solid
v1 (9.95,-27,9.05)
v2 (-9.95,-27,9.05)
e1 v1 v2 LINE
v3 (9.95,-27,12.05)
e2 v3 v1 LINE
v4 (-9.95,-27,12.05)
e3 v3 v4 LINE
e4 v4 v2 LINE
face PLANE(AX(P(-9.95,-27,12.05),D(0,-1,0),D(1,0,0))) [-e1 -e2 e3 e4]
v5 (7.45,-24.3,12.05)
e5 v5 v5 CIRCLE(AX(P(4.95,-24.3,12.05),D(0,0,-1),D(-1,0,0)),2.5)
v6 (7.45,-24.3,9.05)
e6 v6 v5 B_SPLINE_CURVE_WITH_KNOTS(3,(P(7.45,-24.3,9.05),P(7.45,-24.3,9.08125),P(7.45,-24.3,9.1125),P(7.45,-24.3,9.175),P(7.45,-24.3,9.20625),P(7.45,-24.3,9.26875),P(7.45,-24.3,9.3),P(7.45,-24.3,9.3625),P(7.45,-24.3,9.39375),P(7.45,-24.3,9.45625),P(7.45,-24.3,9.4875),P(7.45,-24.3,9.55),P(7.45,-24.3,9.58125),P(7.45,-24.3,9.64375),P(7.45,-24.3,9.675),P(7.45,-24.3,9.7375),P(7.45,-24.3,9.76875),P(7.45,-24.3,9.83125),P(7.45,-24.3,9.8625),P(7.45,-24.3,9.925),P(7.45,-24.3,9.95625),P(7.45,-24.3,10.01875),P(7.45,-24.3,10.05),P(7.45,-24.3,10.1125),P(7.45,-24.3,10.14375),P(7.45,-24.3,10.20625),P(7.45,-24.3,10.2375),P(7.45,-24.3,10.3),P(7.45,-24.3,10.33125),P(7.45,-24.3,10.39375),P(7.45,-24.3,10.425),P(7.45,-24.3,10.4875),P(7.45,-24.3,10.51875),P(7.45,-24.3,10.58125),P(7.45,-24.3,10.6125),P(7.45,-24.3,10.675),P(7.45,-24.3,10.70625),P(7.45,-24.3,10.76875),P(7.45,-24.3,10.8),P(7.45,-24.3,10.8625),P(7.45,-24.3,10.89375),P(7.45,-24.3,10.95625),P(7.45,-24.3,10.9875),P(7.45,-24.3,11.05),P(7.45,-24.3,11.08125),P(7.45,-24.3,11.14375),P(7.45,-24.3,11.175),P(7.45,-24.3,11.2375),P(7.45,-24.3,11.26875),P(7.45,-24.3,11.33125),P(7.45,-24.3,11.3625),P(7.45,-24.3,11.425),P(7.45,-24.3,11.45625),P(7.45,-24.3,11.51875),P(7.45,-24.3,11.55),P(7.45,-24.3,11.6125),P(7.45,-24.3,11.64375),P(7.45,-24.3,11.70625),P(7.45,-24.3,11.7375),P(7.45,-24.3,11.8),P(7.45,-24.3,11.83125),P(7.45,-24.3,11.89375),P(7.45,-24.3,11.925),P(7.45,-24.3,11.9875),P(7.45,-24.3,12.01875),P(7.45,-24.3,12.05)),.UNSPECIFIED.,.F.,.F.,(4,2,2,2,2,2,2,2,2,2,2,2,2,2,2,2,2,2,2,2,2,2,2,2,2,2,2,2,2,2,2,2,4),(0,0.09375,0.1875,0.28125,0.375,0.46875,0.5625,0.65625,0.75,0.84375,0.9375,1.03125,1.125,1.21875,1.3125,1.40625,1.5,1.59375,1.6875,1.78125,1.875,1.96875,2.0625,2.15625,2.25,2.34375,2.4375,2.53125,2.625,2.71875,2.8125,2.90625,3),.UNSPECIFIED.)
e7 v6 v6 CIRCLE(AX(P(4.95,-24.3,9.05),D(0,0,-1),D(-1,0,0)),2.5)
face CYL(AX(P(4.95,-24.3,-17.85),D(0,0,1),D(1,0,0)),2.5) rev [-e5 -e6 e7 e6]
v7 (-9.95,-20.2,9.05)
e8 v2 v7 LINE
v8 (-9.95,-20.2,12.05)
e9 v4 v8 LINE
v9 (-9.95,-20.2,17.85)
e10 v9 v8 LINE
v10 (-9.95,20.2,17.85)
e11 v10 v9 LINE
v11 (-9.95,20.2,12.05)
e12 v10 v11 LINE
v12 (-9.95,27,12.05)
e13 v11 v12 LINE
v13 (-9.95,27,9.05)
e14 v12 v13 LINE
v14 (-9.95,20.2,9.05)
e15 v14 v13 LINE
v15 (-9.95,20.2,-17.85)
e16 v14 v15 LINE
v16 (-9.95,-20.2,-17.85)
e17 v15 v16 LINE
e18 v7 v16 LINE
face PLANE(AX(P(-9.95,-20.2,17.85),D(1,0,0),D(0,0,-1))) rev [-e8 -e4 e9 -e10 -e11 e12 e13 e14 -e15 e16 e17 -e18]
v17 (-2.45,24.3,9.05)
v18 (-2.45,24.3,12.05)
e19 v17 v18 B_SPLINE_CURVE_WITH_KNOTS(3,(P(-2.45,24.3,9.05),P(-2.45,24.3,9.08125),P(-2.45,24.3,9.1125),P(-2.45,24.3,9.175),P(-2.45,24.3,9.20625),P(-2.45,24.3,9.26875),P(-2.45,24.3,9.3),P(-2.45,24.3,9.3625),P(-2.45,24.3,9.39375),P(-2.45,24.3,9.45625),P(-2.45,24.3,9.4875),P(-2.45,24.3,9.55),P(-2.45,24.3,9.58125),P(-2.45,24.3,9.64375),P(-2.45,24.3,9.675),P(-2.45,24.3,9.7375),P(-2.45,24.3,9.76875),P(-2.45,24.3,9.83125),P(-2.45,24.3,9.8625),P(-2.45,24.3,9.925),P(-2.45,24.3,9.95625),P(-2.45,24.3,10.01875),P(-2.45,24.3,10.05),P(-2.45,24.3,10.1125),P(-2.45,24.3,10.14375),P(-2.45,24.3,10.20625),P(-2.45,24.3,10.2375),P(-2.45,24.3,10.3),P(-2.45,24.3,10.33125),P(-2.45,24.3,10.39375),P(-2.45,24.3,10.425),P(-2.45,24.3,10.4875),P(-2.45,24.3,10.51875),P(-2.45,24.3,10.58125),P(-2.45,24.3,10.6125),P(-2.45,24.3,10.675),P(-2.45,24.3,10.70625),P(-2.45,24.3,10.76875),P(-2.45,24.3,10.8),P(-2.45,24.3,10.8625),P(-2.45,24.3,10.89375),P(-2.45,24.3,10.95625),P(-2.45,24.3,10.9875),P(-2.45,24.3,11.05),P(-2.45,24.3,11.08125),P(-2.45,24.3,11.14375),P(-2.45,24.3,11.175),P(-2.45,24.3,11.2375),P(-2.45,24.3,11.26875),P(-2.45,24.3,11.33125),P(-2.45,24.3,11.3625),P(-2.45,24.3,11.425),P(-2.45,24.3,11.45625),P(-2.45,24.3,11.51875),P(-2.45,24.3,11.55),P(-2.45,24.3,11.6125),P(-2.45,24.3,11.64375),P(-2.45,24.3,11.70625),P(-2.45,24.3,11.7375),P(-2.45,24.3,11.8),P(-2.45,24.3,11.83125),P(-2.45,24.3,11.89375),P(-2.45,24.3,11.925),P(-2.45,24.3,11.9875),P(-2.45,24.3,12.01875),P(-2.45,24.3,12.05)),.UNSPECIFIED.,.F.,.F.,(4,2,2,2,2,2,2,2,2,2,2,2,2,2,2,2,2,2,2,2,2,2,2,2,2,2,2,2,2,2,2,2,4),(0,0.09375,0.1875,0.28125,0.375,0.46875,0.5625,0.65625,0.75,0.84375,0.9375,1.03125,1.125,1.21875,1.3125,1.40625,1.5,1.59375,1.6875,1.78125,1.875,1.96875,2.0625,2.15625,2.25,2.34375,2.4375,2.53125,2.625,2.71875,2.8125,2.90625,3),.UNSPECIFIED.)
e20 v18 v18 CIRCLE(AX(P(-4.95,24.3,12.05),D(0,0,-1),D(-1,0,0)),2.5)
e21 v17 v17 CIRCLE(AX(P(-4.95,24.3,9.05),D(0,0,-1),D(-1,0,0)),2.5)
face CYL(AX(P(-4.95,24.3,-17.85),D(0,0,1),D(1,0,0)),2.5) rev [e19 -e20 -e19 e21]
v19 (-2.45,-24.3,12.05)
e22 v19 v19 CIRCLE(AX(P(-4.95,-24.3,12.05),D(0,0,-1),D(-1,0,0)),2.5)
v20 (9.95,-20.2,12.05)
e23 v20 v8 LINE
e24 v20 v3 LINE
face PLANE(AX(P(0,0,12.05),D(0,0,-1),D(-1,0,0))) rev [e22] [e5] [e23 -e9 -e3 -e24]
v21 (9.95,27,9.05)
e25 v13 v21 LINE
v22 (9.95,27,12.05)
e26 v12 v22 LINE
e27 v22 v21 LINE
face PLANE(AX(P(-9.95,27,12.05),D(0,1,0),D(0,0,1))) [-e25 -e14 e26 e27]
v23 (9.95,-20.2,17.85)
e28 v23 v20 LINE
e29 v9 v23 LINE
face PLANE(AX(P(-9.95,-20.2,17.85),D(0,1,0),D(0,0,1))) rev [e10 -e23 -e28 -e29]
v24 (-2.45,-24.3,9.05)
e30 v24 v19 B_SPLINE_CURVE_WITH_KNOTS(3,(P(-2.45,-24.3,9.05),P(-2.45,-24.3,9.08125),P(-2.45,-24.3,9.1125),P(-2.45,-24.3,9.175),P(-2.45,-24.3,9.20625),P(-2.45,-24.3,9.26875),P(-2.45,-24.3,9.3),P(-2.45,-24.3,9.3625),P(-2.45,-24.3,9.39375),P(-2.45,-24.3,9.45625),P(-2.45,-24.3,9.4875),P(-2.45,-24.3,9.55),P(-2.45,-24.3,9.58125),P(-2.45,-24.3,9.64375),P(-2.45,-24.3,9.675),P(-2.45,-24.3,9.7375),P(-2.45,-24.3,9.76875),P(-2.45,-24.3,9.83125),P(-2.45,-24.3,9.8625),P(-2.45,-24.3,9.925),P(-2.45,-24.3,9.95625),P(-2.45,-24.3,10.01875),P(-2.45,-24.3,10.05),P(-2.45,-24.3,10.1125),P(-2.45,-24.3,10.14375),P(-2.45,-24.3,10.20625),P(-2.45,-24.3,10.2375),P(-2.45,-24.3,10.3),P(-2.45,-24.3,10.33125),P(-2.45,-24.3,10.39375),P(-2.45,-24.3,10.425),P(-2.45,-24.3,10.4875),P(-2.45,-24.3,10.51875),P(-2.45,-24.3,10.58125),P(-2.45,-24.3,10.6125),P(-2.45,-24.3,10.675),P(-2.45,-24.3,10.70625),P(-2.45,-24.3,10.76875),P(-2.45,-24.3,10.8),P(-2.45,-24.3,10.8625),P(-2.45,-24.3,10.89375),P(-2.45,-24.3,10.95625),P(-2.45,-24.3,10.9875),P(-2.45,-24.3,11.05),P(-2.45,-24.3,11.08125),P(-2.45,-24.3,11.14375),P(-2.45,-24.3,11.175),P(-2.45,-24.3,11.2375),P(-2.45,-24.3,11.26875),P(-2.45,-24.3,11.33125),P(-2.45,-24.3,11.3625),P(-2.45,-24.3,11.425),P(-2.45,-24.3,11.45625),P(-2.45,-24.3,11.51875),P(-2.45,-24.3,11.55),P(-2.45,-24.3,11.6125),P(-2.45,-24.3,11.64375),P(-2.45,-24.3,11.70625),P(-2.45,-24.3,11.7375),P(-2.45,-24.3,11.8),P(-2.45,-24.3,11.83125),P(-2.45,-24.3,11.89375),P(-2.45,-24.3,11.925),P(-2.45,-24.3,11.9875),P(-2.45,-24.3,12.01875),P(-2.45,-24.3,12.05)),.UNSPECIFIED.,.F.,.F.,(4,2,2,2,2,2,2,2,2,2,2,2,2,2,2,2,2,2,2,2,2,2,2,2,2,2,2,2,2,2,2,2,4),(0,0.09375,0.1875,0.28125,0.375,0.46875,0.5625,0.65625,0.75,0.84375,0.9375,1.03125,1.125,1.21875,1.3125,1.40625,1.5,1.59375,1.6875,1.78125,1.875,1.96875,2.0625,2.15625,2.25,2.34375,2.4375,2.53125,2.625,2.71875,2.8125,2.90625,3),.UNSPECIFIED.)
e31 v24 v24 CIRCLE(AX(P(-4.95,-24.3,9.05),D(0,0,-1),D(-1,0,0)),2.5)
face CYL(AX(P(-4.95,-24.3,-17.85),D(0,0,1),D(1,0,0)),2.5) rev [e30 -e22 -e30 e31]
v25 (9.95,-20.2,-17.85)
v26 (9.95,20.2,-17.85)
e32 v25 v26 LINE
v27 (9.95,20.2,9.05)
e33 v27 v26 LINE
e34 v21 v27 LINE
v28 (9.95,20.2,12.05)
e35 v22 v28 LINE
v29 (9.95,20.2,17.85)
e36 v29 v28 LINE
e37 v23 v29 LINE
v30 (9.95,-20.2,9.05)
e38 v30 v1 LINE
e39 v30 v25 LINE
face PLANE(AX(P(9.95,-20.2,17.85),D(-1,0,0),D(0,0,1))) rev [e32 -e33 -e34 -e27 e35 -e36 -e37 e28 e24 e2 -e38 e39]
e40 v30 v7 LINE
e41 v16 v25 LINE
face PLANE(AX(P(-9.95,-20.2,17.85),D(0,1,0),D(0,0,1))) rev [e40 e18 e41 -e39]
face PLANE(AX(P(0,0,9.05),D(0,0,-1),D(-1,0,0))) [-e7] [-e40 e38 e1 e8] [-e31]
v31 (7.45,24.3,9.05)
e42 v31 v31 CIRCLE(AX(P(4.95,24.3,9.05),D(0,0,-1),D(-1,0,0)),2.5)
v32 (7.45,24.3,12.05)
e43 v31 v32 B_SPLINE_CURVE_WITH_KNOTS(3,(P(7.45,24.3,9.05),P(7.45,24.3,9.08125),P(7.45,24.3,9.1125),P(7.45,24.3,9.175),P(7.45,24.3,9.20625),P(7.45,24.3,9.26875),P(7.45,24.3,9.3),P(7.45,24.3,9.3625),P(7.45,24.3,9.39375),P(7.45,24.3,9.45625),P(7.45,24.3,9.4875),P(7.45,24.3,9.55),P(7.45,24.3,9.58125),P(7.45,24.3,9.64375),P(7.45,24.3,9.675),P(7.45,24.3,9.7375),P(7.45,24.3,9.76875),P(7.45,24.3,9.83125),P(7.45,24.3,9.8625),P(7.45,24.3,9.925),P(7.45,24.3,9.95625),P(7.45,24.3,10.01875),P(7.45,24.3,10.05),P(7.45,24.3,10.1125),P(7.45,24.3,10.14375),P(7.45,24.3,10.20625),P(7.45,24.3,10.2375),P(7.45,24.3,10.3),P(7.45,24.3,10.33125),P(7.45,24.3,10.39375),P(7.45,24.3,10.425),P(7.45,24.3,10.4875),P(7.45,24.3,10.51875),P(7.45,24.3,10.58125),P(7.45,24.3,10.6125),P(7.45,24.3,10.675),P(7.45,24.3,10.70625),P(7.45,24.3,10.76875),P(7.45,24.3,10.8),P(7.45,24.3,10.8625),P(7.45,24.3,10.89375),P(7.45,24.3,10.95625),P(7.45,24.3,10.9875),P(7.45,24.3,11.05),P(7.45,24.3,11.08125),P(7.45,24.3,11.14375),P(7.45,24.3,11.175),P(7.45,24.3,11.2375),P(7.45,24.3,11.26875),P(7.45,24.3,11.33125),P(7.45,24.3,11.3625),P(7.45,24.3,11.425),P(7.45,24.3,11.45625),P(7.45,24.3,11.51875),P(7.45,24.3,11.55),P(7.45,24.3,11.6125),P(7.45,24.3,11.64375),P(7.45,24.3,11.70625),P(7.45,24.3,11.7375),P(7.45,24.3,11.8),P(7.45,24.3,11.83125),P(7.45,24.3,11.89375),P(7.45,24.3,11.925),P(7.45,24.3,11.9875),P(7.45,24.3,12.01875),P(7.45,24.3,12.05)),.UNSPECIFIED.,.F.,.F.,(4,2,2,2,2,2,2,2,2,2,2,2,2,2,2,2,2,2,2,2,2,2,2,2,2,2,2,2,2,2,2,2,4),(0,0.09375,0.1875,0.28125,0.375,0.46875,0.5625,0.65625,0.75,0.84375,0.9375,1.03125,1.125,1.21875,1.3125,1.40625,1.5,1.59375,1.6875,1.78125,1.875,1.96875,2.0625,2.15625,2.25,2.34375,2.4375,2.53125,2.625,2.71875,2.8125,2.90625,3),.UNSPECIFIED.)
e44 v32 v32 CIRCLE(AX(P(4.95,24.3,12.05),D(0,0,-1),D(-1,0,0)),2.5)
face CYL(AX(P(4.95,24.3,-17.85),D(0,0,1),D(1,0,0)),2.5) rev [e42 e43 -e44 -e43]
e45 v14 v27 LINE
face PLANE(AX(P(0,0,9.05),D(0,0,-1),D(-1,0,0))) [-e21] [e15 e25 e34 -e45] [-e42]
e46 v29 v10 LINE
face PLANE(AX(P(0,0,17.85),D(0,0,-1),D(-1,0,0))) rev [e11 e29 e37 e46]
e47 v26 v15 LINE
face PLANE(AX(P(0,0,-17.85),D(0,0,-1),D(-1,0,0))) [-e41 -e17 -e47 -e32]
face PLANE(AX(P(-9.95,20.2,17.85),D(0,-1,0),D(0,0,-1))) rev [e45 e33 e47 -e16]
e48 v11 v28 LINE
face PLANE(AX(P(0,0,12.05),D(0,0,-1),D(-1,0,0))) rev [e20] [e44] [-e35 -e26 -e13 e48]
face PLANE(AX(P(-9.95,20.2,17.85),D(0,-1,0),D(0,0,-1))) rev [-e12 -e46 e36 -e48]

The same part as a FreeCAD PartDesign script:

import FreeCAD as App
import Part
import Sketcher
from FreeCAD import Vector


def add_polygon(sketch, points):
    """Adds a closed chain of lines whose ends are joined by coincident constraints."""
    first, n = sketch.GeometryCount, len(points)
    for a, b in zip(points, points[1:] + points[:1]):
        sketch.addGeometry(Part.LineSegment(App.Vector(*a, 0), App.Vector(*b, 0)), False)
    for i in range(n):
        sketch.addConstraint(Sketcher.Constraint("Coincident", first + i, 2, first + (i + 1) % n, 1))

doc = App.newDocument("Part")
body = doc.addObject("PartDesign::Body", "Body")

sketch1 = body.newObject("Sketcher::SketchObject", "Sketch")
sketch1.AttachmentSupport = (doc.getObject("XY_Plane"), [""])
sketch1.MapMode = "FlatFace"
add_polygon(sketch1, [(-9.95, 20.2), (-9.95, -20.2), (9.95, -20.2), (9.95, 20.2)])
sketch1.addConstraint([
    Sketcher.Constraint("Vertical", 0),
    Sketcher.Constraint("Horizontal", 1),
    Sketcher.Constraint("Vertical", 2),
    Sketcher.Constraint("Horizontal", 3),
    Sketcher.Constraint("Symmetric", 0, 2, 2, 2, -1, 1),
    Sketcher.Constraint("DistanceX", 1, 1, 1, 2, 19.9),
    Sketcher.Constraint("DistanceY", 0, 2, 0, 1, 40.4),
])
pad1 = body.newObject("PartDesign::Pad", "Pad")
pad1.Profile = sketch1
pad1.Length = 35.7
pad1.Midplane = True

sketch2 = body.newObject("Sketcher::SketchObject", "Sketch001")
sketch2.AttachmentSupport = (doc.getObject("XY_Plane"), [""])
sketch2.MapMode = "FlatFace"
sketch2.AttachmentOffset = App.Placement(Vector(0, 0, 9.05), App.Rotation())
add_polygon(sketch2, [(9.95, 27), (9.95, -27), (-9.95, -27), (-9.95, 27)])
sketch2.addConstraint([
    Sketcher.Constraint("Vertical", 0),
    Sketcher.Constraint("Horizontal", 1),
    Sketcher.Constraint("Vertical", 2),
    Sketcher.Constraint("Horizontal", 3),
    Sketcher.Constraint("Symmetric", 0, 2, 2, 2, -1, 1),
    Sketcher.Constraint("DistanceY", 0, 2, 0, 1, 54.0),
    Sketcher.Constraint("DistanceX", 1, 2, 1, 1, 19.9),
])
pad2 = body.newObject("PartDesign::Pad", "Pad001")
pad2.Profile = sketch2
pad2.Length = 3

sketch3 = body.newObject("Sketcher::SketchObject", "Sketch002")
sketch3.AttachmentSupport = (doc.getObject("XY_Plane"), [""])
sketch3.MapMode = "FlatFace"
sketch3.addGeometry([
    Part.Circle(Vector(4.95, -24.3, 0), Vector(0, 0, 1), 2.5),
    Part.Circle(Vector(-4.95, -24.3, 0), Vector(0, 0, 1), 2.5),
    Part.Circle(Vector(-4.95, 24.3, 0), Vector(0, 0, 1), 2.5),
    Part.Circle(Vector(4.95, 24.3, 0), Vector(0, 0, 1), 2.5),
], False)
sketch3.addConstraint([
    Sketcher.Constraint("Equal", 0, 1),
    Sketcher.Constraint("Equal", 1, 2),
    Sketcher.Constraint("Equal", 2, 3),
    Sketcher.Constraint("Symmetric", 0, 3, 2, 3, -1, 1),
    Sketcher.Constraint("Symmetric", 1, 3, 3, 3, -1, 1),
    Sketcher.Constraint("Symmetric", 0, 3, 1, 3, -2),
    Sketcher.Constraint("Diameter", 0, 5.0),
    Sketcher.Constraint("DistanceY", 0, 3, -1, 1, 24.3),
    Sketcher.Constraint("DistanceX", 1, 3, 0, 3, 9.9),
])
pocket1 = body.newObject("PartDesign::Pocket", "Pocket")
pocket1.Profile = sketch3
pocket1.Type = "ThroughAll"
pocket1.Midplane = True

doc.recompute()
